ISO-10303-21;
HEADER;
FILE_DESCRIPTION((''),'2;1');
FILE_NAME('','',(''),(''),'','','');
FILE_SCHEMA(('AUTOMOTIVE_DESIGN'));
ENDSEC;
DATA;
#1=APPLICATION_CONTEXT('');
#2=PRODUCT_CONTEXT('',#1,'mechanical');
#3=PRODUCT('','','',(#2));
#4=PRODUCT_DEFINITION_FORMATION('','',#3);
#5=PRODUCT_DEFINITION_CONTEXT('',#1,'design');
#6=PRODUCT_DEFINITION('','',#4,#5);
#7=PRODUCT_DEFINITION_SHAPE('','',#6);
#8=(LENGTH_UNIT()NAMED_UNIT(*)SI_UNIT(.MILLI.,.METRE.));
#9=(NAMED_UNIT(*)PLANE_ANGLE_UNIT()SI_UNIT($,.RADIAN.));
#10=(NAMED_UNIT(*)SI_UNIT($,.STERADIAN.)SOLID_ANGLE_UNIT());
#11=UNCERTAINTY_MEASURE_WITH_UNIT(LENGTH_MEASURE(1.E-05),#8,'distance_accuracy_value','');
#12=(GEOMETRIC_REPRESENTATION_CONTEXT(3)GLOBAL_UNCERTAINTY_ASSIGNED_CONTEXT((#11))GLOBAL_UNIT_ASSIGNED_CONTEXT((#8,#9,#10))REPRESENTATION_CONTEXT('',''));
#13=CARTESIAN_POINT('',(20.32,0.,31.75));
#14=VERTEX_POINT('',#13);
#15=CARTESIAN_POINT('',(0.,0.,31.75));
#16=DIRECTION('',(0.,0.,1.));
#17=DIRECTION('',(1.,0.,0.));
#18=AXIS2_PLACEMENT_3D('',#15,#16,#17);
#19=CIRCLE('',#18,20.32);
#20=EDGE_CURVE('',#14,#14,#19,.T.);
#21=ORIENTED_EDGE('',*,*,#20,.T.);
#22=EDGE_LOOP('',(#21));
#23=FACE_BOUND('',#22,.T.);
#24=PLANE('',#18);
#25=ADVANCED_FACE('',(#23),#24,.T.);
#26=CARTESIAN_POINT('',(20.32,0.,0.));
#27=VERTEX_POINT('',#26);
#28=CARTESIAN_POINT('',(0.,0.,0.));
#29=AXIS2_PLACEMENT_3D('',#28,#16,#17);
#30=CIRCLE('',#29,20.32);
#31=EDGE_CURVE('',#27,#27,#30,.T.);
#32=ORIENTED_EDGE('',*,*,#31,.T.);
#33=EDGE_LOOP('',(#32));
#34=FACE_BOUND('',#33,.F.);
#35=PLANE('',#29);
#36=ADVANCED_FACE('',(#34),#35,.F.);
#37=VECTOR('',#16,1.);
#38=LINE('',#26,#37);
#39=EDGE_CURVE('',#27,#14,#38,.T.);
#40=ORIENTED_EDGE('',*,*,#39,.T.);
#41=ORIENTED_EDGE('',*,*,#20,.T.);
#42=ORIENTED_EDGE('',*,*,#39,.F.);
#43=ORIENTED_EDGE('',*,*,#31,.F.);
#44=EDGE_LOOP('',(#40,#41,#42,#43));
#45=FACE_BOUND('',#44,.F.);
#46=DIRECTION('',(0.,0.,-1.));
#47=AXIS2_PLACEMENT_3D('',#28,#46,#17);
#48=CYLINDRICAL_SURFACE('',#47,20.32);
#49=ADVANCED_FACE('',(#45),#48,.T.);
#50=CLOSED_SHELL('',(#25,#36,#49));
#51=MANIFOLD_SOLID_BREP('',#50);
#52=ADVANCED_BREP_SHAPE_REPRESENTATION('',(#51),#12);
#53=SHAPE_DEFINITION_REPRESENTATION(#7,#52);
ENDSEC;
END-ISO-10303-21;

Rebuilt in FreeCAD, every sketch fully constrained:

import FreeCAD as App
import Part
import Sketcher

V = App.Vector
Q = App.Units.Quantity

doc = App.newDocument("Part")
body = doc.addObject("PartDesign::Body", "Body")

sketch1 = body.newObject("Sketcher::SketchObject", "Sketch")
sketch1.AttachmentSupport = (doc.getObject("XY_Plane"), [""])
sketch1.MapMode = "FlatFace"
sketch1.addGeometry(Part.Circle(V(0, 0, 0), V(0, 0, 1), 20.32), False)
sketch1.addConstraint([
    Sketcher.Constraint("Coincident", 0, 3, -1, 1),
    Sketcher.Constraint("Diameter", 0, Q("1.6 in")),
])
pad1 = body.newObject("PartDesign::Pad", "Pad")
pad1.Profile = sketch1
pad1.Length = Q("1.25 in")

doc.recompute()
